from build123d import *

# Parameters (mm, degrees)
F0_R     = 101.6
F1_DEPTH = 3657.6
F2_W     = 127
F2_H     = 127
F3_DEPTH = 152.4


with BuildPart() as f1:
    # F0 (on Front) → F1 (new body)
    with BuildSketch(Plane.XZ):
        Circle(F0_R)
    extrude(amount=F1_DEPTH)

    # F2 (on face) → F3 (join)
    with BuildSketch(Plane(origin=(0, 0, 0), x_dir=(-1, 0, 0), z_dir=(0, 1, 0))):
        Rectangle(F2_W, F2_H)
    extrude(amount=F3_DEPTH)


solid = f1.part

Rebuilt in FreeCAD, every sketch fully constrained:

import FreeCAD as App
import Part
import Sketcher
Q = App.Units.Quantity


def add_polygon(sketch, points):
    """Adds a closed chain of lines whose ends are joined by coincident constraints."""
    first, n = sketch.GeometryCount, len(points)
    for a, b in zip(points, points[1:] + points[:1]):
        sketch.addGeometry(Part.LineSegment(App.Vector(*a, 0), App.Vector(*b, 0)), False)
    for i in range(n):
        sketch.addConstraint(Sketcher.Constraint("Coincident", first + i, 2, first + (i + 1) % n, 1))

doc = App.newDocument("Part")
body = doc.addObject("PartDesign::Body", "Body")

# Sketch on XZ plane
sketch1 = body.newObject("Sketcher::SketchObject", "Sketch")
sketch1.AttachmentSupport = (doc.getObject("XZ_Plane"), [""])
sketch1.MapMode = "FlatFace"
sketch1.addGeometry(Part.Circle(App.Vector(0, 0, 0), App.Vector(0, 0, 1), 102), False)
sketch1.addConstraint([
    Sketcher.Constraint("Coincident", 0, 3, -1, 1),
    Sketcher.Constraint("Diameter", 0, Q("8 in")),
])
pad1 = body.newObject("PartDesign::Pad", "Pad")
pad1.Profile = sketch1
pad1.Length = Q("144 in")

# Sketch on XZ plane
sketch2 = body.newObject("Sketcher::SketchObject", "Sketch001")
sketch2.AttachmentSupport = (doc.getObject("XZ_Plane"), [""])
sketch2.MapMode = "FlatFace"
add_polygon(sketch2, [(64, 64), (64, -64), (-64, -64), (-64, 64)])  # lines 0-3
sketch2.addConstraint([
    Sketcher.Constraint("Vertical", 0),
    Sketcher.Constraint("Horizontal", 1),
    Sketcher.Constraint("Vertical", 2),
    Sketcher.Constraint("Horizontal", 3),
    Sketcher.Constraint("Symmetric", 0, 2, 2, 2, -1, 1),
    Sketcher.Constraint("Equal", 3, 0),
    Sketcher.Constraint("DistanceX", 1, 2, 1, 1, Q("5 in")),
])
pad2 = body.newObject("PartDesign::Pad", "Pad001")
pad2.Profile = sketch2
pad2.Length = Q("6 in")
pad2.Reversed = True

doc.recompute()
